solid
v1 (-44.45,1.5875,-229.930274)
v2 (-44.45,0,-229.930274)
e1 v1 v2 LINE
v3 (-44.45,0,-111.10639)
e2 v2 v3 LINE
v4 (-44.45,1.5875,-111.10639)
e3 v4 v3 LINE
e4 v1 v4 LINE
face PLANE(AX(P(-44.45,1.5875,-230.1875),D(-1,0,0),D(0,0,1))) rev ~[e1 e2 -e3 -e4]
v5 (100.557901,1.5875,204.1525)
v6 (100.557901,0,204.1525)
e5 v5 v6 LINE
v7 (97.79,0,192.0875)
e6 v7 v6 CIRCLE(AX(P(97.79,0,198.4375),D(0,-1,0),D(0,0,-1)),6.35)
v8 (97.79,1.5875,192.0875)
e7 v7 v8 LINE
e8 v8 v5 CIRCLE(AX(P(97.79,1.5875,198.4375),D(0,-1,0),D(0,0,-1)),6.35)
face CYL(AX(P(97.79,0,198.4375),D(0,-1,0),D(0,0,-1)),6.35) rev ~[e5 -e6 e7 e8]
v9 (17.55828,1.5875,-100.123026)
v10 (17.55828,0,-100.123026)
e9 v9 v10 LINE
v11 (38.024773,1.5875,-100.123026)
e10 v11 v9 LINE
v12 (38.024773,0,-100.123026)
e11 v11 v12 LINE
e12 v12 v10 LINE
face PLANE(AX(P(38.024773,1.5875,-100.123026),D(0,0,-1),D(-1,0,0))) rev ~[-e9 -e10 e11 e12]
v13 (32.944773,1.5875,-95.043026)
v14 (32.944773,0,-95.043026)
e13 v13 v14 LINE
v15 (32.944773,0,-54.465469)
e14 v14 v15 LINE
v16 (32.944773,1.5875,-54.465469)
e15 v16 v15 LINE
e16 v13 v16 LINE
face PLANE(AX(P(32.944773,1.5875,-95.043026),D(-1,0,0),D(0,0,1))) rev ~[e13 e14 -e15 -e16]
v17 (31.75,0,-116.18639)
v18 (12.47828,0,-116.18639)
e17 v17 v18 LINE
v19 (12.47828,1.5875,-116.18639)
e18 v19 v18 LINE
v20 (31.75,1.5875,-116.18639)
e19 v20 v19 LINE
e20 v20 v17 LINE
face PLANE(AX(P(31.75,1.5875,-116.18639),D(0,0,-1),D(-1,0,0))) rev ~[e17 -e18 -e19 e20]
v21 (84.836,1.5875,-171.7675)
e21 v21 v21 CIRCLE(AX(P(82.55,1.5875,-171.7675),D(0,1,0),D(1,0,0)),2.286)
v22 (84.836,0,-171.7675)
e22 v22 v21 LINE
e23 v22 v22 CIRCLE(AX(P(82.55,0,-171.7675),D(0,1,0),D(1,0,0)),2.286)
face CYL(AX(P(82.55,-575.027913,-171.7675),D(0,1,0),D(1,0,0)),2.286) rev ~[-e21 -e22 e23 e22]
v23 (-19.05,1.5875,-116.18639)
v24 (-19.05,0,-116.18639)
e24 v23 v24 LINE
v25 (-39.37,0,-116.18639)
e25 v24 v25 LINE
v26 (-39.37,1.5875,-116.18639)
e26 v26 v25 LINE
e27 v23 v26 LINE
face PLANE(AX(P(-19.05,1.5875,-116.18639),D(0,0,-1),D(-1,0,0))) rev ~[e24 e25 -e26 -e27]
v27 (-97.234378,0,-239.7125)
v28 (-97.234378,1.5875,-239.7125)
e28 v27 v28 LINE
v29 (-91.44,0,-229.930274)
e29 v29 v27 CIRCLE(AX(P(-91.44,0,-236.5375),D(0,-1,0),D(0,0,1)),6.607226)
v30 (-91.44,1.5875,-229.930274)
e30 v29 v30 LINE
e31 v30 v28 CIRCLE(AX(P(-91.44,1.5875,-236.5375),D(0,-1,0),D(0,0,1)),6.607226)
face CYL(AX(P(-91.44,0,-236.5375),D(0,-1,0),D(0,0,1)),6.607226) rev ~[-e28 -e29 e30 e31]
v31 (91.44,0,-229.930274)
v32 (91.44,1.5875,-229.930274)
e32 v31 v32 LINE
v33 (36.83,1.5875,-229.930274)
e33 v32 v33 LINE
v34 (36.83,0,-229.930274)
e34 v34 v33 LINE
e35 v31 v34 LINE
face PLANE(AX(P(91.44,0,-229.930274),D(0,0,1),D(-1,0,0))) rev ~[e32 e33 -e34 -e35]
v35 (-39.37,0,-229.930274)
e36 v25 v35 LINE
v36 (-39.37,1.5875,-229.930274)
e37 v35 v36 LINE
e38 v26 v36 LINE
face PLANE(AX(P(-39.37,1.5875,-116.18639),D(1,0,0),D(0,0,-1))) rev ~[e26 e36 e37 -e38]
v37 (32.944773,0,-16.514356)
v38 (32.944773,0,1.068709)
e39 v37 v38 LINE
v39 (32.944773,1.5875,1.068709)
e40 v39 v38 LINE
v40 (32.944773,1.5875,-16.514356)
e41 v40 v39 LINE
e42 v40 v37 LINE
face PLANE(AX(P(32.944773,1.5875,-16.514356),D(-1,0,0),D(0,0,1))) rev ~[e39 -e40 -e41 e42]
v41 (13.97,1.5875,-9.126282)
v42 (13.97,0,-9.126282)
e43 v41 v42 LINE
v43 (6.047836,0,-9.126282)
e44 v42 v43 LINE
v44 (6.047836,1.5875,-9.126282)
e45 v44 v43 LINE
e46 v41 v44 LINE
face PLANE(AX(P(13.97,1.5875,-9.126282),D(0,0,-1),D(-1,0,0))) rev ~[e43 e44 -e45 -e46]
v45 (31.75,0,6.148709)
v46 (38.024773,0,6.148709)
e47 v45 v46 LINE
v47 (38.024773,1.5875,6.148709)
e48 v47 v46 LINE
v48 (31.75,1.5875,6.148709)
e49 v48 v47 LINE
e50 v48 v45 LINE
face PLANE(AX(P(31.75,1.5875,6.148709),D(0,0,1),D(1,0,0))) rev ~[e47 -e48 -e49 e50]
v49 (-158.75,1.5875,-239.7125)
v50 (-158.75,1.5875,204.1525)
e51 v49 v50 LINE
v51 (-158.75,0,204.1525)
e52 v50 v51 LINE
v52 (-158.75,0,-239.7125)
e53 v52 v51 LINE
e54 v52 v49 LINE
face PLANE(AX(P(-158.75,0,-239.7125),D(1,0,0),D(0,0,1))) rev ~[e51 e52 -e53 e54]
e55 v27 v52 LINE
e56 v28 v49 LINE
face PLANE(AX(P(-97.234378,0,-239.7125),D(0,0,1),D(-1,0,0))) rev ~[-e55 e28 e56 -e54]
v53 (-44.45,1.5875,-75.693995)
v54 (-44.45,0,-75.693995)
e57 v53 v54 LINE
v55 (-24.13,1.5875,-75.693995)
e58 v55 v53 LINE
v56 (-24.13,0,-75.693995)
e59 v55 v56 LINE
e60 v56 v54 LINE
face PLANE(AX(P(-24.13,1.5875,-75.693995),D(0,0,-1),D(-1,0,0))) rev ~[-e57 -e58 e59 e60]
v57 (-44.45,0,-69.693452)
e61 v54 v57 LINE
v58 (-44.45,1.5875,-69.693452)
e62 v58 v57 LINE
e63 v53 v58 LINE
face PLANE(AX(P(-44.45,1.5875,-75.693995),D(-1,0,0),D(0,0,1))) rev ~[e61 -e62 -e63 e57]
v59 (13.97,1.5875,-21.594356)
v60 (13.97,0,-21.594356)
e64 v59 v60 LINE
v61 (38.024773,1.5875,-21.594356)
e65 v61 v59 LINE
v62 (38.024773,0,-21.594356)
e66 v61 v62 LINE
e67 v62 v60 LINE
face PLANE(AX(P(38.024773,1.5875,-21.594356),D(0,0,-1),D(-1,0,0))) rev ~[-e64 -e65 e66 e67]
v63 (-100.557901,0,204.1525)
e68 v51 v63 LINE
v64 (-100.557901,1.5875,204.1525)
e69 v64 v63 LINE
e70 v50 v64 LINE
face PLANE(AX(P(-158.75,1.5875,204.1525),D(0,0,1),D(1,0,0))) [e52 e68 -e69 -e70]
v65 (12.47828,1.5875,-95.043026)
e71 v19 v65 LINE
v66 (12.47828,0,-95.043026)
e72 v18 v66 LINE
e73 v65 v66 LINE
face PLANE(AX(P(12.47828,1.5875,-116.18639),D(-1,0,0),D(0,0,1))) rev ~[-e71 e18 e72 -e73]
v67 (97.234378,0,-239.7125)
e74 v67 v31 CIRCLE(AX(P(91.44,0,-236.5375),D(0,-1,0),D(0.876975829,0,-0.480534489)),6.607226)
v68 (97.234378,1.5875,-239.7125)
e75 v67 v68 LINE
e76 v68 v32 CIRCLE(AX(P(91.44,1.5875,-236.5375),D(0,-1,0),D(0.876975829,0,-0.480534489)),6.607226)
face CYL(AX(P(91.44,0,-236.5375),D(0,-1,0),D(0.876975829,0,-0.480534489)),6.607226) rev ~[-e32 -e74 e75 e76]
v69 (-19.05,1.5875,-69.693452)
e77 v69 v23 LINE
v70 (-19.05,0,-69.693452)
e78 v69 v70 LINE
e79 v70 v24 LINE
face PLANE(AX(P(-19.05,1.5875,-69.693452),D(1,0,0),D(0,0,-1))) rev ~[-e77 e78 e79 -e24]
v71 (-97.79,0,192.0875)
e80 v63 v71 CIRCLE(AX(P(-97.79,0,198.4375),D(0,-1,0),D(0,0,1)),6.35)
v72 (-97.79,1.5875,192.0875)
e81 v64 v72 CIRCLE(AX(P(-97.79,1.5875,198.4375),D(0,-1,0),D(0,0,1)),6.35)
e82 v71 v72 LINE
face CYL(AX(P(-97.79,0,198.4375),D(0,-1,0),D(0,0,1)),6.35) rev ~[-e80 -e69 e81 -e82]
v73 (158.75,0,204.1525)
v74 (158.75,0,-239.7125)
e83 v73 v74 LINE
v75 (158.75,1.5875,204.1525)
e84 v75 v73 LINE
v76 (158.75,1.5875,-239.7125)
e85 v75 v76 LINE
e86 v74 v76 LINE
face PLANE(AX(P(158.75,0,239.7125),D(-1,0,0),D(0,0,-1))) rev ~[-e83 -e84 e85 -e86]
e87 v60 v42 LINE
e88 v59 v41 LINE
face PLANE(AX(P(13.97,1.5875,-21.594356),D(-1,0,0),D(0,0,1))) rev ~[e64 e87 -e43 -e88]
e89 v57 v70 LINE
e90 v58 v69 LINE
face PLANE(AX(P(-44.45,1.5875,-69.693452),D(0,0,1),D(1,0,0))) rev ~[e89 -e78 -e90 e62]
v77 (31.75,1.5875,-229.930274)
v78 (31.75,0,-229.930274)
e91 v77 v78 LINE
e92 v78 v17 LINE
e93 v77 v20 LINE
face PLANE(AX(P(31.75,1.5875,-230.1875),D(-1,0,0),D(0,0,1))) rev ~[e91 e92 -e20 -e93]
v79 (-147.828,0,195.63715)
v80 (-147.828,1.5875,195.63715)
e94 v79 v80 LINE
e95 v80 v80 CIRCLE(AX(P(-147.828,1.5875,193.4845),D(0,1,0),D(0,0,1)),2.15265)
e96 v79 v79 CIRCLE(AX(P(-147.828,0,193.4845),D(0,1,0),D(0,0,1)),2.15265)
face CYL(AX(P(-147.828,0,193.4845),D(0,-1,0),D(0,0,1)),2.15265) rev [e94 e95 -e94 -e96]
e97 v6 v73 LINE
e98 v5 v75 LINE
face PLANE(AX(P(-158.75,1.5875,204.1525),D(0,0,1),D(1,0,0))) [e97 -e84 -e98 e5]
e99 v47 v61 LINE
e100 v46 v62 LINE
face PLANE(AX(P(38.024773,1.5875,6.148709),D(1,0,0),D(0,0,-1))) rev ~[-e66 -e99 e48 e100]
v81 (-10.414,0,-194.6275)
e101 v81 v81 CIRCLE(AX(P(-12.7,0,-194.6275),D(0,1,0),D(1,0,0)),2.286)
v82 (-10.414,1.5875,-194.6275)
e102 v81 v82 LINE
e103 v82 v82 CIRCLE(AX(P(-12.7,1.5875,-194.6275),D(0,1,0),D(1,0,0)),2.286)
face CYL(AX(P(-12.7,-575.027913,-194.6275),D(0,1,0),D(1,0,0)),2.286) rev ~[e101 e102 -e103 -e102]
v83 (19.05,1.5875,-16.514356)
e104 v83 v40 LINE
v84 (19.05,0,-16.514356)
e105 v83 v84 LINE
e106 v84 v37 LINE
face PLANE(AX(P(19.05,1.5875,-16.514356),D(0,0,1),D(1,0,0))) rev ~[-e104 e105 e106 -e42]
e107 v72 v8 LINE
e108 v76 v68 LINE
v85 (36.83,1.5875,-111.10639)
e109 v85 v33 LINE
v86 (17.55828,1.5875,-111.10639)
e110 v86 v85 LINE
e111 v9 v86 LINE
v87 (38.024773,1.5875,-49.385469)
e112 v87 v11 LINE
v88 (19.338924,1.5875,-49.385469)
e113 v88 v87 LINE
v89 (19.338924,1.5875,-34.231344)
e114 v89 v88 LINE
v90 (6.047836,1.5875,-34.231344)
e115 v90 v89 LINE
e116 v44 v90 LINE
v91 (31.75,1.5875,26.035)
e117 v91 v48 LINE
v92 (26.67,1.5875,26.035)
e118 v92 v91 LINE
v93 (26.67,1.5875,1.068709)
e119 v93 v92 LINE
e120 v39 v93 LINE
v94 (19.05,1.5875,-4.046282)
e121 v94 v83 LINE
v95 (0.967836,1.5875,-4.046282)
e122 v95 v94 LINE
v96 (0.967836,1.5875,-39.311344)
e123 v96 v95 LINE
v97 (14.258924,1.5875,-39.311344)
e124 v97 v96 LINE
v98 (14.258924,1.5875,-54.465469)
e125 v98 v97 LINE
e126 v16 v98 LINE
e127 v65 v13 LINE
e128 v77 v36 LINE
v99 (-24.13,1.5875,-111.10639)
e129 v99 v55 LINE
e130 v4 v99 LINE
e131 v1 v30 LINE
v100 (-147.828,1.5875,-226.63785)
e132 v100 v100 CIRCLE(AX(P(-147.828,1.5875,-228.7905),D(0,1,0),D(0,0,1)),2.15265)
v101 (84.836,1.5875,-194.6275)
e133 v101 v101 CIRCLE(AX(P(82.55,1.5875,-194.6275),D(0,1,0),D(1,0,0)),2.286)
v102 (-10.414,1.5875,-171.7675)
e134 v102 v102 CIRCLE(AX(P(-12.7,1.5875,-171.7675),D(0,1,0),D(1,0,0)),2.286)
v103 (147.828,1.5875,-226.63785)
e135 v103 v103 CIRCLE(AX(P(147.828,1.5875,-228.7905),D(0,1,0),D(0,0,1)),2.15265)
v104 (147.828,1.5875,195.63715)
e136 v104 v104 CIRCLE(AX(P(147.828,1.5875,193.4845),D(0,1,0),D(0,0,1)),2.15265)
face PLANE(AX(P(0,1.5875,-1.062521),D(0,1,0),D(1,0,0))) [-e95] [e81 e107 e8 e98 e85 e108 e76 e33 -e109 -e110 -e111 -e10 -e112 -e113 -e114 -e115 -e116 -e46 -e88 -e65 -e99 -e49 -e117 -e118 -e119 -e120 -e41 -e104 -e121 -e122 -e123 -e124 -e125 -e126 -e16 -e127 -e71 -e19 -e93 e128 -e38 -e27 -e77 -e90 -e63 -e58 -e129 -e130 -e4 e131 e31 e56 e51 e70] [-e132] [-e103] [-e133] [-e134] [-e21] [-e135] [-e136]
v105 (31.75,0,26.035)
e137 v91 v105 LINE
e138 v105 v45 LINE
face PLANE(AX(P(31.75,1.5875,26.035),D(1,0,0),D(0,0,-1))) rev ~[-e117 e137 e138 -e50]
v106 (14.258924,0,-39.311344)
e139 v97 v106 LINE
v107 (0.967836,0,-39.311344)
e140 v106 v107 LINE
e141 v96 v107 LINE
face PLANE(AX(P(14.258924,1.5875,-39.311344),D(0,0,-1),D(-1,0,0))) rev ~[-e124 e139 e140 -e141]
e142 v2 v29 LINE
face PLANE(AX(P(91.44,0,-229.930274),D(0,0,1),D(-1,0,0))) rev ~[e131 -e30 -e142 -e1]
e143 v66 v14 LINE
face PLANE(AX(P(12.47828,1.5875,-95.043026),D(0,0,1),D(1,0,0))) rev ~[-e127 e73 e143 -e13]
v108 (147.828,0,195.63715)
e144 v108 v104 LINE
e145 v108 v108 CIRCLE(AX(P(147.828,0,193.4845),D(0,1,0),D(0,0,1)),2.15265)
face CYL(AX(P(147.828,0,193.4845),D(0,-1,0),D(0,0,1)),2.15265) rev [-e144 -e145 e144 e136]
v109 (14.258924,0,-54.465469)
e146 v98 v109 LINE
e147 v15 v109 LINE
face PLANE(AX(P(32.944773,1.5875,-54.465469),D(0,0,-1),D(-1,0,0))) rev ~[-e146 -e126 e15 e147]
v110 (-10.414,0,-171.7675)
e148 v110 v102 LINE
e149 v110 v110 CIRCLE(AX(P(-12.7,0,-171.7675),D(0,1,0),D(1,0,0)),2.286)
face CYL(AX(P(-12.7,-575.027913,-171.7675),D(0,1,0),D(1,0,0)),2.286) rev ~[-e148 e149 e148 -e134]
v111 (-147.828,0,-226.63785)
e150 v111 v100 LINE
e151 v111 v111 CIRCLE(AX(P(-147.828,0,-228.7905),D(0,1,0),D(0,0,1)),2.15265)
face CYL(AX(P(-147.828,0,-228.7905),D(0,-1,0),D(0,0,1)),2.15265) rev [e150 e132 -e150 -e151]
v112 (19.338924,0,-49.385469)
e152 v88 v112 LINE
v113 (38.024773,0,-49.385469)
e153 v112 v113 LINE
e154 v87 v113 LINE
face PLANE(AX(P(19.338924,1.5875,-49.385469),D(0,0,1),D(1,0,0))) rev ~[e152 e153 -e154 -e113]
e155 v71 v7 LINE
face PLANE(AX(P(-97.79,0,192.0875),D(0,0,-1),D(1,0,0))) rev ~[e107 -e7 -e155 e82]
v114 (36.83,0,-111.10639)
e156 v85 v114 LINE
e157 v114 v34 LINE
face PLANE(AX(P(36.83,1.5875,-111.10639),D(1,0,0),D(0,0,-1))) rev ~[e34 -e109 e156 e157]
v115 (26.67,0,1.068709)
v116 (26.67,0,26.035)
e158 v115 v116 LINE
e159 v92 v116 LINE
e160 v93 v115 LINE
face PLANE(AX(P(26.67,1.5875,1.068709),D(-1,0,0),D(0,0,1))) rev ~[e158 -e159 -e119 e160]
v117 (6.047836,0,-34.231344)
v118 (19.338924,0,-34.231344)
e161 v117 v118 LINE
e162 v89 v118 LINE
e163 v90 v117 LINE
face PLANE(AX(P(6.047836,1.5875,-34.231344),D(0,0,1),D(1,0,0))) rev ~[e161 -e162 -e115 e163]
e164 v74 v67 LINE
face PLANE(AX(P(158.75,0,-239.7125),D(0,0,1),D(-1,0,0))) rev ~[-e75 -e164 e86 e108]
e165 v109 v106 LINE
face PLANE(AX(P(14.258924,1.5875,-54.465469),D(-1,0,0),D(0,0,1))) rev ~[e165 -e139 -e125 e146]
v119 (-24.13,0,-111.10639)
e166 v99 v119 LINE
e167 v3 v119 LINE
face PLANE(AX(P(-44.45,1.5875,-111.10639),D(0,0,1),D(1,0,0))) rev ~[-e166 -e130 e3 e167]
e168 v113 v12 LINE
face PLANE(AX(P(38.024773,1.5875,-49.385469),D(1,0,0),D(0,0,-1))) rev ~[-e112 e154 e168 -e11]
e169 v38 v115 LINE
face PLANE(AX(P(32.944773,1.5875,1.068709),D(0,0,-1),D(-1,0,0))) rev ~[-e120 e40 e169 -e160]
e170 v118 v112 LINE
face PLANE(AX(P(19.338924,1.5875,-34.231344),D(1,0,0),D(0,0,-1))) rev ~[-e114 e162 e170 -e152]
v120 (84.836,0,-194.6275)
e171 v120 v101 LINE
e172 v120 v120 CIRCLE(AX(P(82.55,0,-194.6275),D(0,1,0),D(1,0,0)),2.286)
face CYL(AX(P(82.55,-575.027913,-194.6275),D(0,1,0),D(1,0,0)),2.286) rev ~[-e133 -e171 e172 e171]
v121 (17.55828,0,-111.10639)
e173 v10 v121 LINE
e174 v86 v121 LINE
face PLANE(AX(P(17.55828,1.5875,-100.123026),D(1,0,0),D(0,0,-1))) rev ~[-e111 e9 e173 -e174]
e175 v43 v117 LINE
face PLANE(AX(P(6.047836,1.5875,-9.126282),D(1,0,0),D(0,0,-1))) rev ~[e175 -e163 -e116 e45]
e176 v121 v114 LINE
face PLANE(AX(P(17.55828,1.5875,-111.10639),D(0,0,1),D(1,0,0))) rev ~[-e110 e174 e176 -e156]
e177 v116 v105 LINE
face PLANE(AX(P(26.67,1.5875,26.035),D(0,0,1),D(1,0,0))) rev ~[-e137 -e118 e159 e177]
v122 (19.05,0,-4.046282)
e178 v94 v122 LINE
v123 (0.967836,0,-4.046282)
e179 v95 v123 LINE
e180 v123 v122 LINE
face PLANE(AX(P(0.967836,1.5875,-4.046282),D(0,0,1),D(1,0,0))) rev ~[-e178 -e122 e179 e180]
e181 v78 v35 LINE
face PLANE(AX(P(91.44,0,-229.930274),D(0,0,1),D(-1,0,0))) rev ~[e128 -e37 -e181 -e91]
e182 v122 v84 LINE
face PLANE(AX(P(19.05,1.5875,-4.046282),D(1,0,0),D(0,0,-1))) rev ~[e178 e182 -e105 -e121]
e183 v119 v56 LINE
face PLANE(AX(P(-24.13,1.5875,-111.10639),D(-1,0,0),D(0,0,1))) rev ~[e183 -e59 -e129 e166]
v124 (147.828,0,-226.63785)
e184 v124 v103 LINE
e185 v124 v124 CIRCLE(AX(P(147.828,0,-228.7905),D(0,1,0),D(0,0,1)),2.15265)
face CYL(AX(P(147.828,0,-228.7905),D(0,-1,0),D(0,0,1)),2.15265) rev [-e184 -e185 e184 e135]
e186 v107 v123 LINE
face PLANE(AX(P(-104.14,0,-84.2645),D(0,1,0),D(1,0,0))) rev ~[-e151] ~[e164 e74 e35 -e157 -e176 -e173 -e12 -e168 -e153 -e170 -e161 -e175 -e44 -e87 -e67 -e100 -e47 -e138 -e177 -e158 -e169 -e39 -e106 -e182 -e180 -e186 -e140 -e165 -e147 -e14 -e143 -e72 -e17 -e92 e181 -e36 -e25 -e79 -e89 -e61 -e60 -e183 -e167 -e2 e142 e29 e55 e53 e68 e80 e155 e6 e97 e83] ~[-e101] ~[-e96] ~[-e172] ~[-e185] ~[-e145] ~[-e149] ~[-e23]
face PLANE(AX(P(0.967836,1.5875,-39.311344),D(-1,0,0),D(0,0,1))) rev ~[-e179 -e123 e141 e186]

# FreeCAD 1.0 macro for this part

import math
import FreeCAD as App
import Part
import Sketcher
from FreeCAD import Vector
Q = App.Units.Quantity

doc = App.newDocument("Part")
params = doc.addObject("Spreadsheet::Sheet", "Params")
for row, (alias, value) in enumerate([
    ("sketch1_radius", "0.25 in"),
    ("sketch1_width", "12.5 in"),
    ("sketch1_width2", "7.2 in"),
    ("sketch1_width3", "7.7 in"),
    ("sketch1_width4", "2.4218749 in"),
    ("pad1_length", "0.0625 in"),
    ("sketch2_width", "1 in"),
    ("sketch2_width2", "0.2 in"),
    ("pocket1_length", "0.1 in"),
    ("sketch3_diameter", "0.18 in"),
    ("hole_diameter", "0.18 in"),
    ("sketch4_width", "12.5 in"),
    ("sketch4_height", "1.4 in"),
], start=1):
    params.set(f"A{row}", alias)
    params.set(f"B{row}", "=" + value)
    params.setAlias(f"B{row}", alias)

body = doc.addObject("PartDesign::Body", "Body")

sketch1 = body.newObject("Sketcher::SketchObject", "Sketch")
sketch1.AttachmentSupport = (doc.getObject("XZ_Plane"), [""])
sketch1.MapMode = "FlatFace"
sketch1.addGeometry(Part.LineSegment(Vector(-97.234378, -239.7125, 0), Vector(-158.75, -239.7125, 0)), False)
sketch1.addGeometry(Part.LineSegment(Vector(-158.75, -239.7125, 0), Vector(-158.75, 239.7125, 0)), False)
sketch1.addGeometry(Part.LineSegment(Vector(-158.75, 239.7125, 0), Vector(158.75, 239.7125, 0)), False)
sketch1.addGeometry(Part.LineSegment(Vector(158.75, 239.7125, 0), Vector(158.75, -239.7125, 0)), False)
sketch1.addGeometry(Part.LineSegment(Vector(158.75, -239.7125, 0), Vector(97.234378, -239.7125, 0)), False)
sketch1.addGeometry(Part.ArcOfCircle(Part.Circle(Vector(91.44, -236.5375, 0), Vector(0, 0, 1), 6.607226), math.radians(-28.720316), math.radians(90)), False)
sketch1.addGeometry(Part.LineSegment(Vector(91.44, -229.930274, 0), Vector(-91.44, -229.930274, 0)), False)
sketch1.addGeometry(Part.ArcOfCircle(Part.Circle(Vector(-91.44, -236.5375, 0), Vector(0, 0, 1), 6.607226), math.radians(90), math.radians(208.720316)), False)
sketch1.addGeometry(Part.Circle(Vector(-147.828, 193.4845, 0), Vector(0, 0, 1), 2.15265), False)
sketch1.addGeometry(Part.LineSegment(Vector(97.79, 204.7875, 0), Vector(-97.79, 204.7875, 0)), False)
sketch1.addGeometry(Part.ArcOfCircle(Part.Circle(Vector(-97.79, 198.4375, 0), Vector(0, 0, 1), 6.35), math.radians(90), math.radians(270)), False)
sketch1.addGeometry(Part.LineSegment(Vector(-97.79, 192.0875, 0), Vector(97.79, 192.0875, 0)), False)
sketch1.addGeometry(Part.ArcOfCircle(Part.Circle(Vector(97.79, 198.4375, 0), Vector(0, 0, 1), 6.35), math.radians(-90), math.radians(90)), False)
sketch1.addGeometry(Part.Circle(Vector(147.828, 193.4845, 0), Vector(0, 0, 1), 2.15265), False)
sketch1.addGeometry(Part.Circle(Vector(-147.828, -228.7905, 0), Vector(0, 0, 1), 2.15265), False)
sketch1.addGeometry(Part.Circle(Vector(147.828, -228.7905, 0), Vector(0, 0, 1), 2.15265), False)
sketch1.addConstraint(Sketcher.Constraint("Coincident", 0, 2, 1, 1))
sketch1.addConstraint(Sketcher.Constraint("Coincident", 1, 2, 2, 1))
sketch1.addConstraint(Sketcher.Constraint("Coincident", 2, 2, 3, 1))
sketch1.addConstraint(Sketcher.Constraint("Coincident", 3, 2, 4, 1))
sketch1.addConstraint(Sketcher.Constraint("Coincident", 4, 2, 5, 1))
sketch1.addConstraint(Sketcher.Constraint("Tangent", 5, 2, 6, 1))
sketch1.addConstraint(Sketcher.Constraint("Tangent", 6, 2, 7, 1))
sketch1.addConstraint(Sketcher.Constraint("Coincident", 7, 2, 0, 1))
sketch1.addConstraint(Sketcher.Constraint("Tangent", 9, 2, 10, 1))
sketch1.addConstraint(Sketcher.Constraint("Tangent", 10, 2, 11, 1))
sketch1.addConstraint(Sketcher.Constraint("Tangent", 11, 2, 12, 1))
sketch1.addConstraint(Sketcher.Constraint("Tangent", 12, 2, 9, 1))
sketch1.addConstraint(Sketcher.Constraint("Horizontal", 0))
sketch1.addConstraint(Sketcher.Constraint("Vertical", 1))
sketch1.addConstraint(Sketcher.Constraint("Horizontal", 2))
sketch1.addConstraint(Sketcher.Constraint("Vertical", 3))
sketch1.addConstraint(Sketcher.Constraint("Horizontal", 4))
sketch1.addConstraint(Sketcher.Constraint("Horizontal", 6))
sketch1.addConstraint(Sketcher.Constraint("Horizontal", 9))
sketch1.addConstraint(Sketcher.Constraint("Horizontal", 11))
sketch1.addConstraint(Sketcher.Constraint("Equal", 5, 7))
sketch1.addConstraint(Sketcher.Constraint("Equal", 8, 13))
sketch1.addConstraint(Sketcher.Constraint("Equal", 13, 14))
sketch1.addConstraint(Sketcher.Constraint("Equal", 14, 15))
sketch1.addConstraint(Sketcher.Constraint("Symmetric", 0, 2, 2, 2, -1, 1))
sketch1.addConstraint(Sketcher.Constraint("Symmetric", 8, 3, 13, 3, -2))
sketch1.addConstraint(Sketcher.Constraint("Symmetric", 14, 3, 15, 3, -2))
sketch1.addConstraint(Sketcher.Constraint("Symmetric", 4, 2, 7, 2, -2))
sketch1.addConstraint(Sketcher.Constraint("Vertical", 8, 3, 14, 3))
sketch1.addConstraint(Sketcher.Constraint("Radius", 10, Q("0.25 in")))
sketch1.addConstraint(Sketcher.Constraint("DistanceX", 2, 1, 2, 2, Q("12.5 in")))
sketch1.addConstraint(Sketcher.Constraint("DistanceX", 6, 2, 6, 1, Q("7.2 in")))
sketch1.addConstraint(Sketcher.Constraint("DistanceX", 9, 2, 9, 1, Q("7.7 in")))
sketch1.addConstraint(Sketcher.Constraint("Diameter", 8, Q("0.1695 in")))
sketch1.addConstraint(Sketcher.Constraint("DistanceX", 1, 2, 10, 3, Q("2.4 in")))
sketch1.addConstraint(Sketcher.Constraint("DistanceX", 0, 2, 0, 1, Q("2.4218749 in")))
sketch1.addConstraint(Sketcher.Constraint("DistanceY", 1, 1, 1, 2, Q("18.875 in")))
sketch1.addConstraint(Sketcher.Constraint("DistanceX", 8, 3, -1, 1, Q("5.82 in")))
sketch1.addConstraint(Sketcher.Constraint("DistanceY", 7, 3, 8, 3, Q("16.93 in")))
sketch1.addConstraint(Sketcher.Constraint("DistanceY", 14, 3, 10, 3, Q("16.82 in")))
sketch1.addConstraint(Sketcher.Constraint("DistanceY", 0, 2, 14, 3, Q("0.43 in")))
sketch1.addConstraint(Sketcher.Constraint("DistanceY", 8, 3, 1, 2, Q("1.82 in")))
sketch1.setExpression("Constraints[29]", "Params.sketch1_radius")
sketch1.setExpression("Constraints[30]", "Params.sketch1_width")
sketch1.setExpression("Constraints[31]", "Params.sketch1_width2")
sketch1.setExpression("Constraints[32]", "Params.sketch1_width3")
sketch1.setExpression("Constraints[35]", "Params.sketch1_width4")
pad1 = body.newObject("PartDesign::Pad", "Pad")
pad1.Profile = sketch1
pad1.setExpression("Length", "Params.pad1_length")
pad1.Reversed = True

sketch2 = body.newObject("Sketcher::SketchObject", "Sketch001")
sketch2.AttachmentSupport = (doc.getObject("XZ_Plane"), [""])
sketch2.MapMode = "FlatFace"
sketch2.AttachmentOffset = App.Placement(Vector(0, 0, -0.0625 * 25.4), App.Rotation())
sketch2.addGeometry(Part.LineSegment(Vector(-39.37, -230.1875, 0), Vector(-44.45, -230.1875, 0)), False)
sketch2.addGeometry(Part.LineSegment(Vector(-44.45, -230.1875, 0), Vector(-44.45, -111.10639, 0)), False)
sketch2.addGeometry(Part.LineSegment(Vector(-44.45, -111.10639, 0), Vector(-24.13, -111.10639, 0)), False)
sketch2.addGeometry(Part.LineSegment(Vector(-24.13, -111.10639, 0), Vector(-24.13, -75.693995, 0)), False)
sketch2.addGeometry(Part.LineSegment(Vector(-24.13, -75.693995, 0), Vector(-44.45, -75.693995, 0)), False)
sketch2.addGeometry(Part.LineSegment(Vector(-44.45, -75.693995, 0), Vector(-44.45, -69.693452, 0)), False)
sketch2.addGeometry(Part.LineSegment(Vector(-44.45, -69.693452, 0), Vector(-19.05, -69.693452, 0)), False)
sketch2.addGeometry(Part.LineSegment(Vector(-19.05, -69.693452, 0), Vector(-19.05, -116.18639, 0)), False)
sketch2.addGeometry(Part.LineSegment(Vector(-19.05, -116.18639, 0), Vector(-39.37, -116.18639, 0)), False)
sketch2.addGeometry(Part.LineSegment(Vector(-39.37, -116.18639, 0), Vector(-39.37, -230.1875, 0)), False)
sketch2.addGeometry(Part.LineSegment(Vector(36.83, -230.1875, 0), Vector(31.75, -230.1875, 0)), False)
sketch2.addGeometry(Part.LineSegment(Vector(31.75, -230.1875, 0), Vector(31.75, -116.18639, 0)), False)
sketch2.addGeometry(Part.LineSegment(Vector(31.75, -116.18639, 0), Vector(12.47828, -116.18639, 0)), False)
sketch2.addGeometry(Part.LineSegment(Vector(12.47828, -116.18639, 0), Vector(12.47828, -95.043026, 0)), False)
sketch2.addGeometry(Part.LineSegment(Vector(12.47828, -95.043026, 0), Vector(32.944773, -95.043026, 0)), False)
sketch2.addGeometry(Part.LineSegment(Vector(32.944773, -95.043026, 0), Vector(32.944773, -54.465469, 0)), False)
sketch2.addGeometry(Part.LineSegment(Vector(32.944773, -54.465469, 0), Vector(14.258924, -54.465469, 0)), False)
sketch2.addGeometry(Part.LineSegment(Vector(14.258924, -54.465469, 0), Vector(14.258924, -39.311344, 0)), False)
sketch2.addGeometry(Part.LineSegment(Vector(14.258924, -39.311344, 0), Vector(0.967836, -39.311344, 0)), False)
sketch2.addGeometry(Part.LineSegment(Vector(0.967836, -39.311344, 0), Vector(0.967836, -4.046282, 0)), False)
sketch2.addGeometry(Part.LineSegment(Vector(0.967836, -4.046282, 0), Vector(19.05, -4.046282, 0)), False)
sketch2.addGeometry(Part.LineSegment(Vector(19.05, -4.046282, 0), Vector(19.05, -16.514356, 0)), False)
sketch2.addGeometry(Part.LineSegment(Vector(19.05, -16.514356, 0), Vector(32.944773, -16.514356, 0)), False)
sketch2.addGeometry(Part.LineSegment(Vector(32.944773, -16.514356, 0), Vector(32.944773, 1.068709, 0)), False)
sketch2.addGeometry(Part.LineSegment(Vector(32.944773, 1.068709, 0), Vector(26.67, 1.068709, 0)), False)
sketch2.addGeometry(Part.LineSegment(Vector(26.67, 1.068709, 0), Vector(26.67, 26.035, 0)), False)
sketch2.addGeometry(Part.LineSegment(Vector(26.67, 26.035, 0), Vector(31.75, 26.035, 0)), False)
sketch2.addGeometry(Part.LineSegment(Vector(31.75, 26.035, 0), Vector(31.75, 6.148709, 0)), False)
sketch2.addGeometry(Part.LineSegment(Vector(31.75, 6.148709, 0), Vector(38.024773, 6.148709, 0)), False)
sketch2.addGeometry(Part.LineSegment(Vector(38.024773, 6.148709, 0), Vector(38.024773, -21.594356, 0)), False)
sketch2.addGeometry(Part.LineSegment(Vector(38.024773, -21.594356, 0), Vector(13.97, -21.594356, 0)), False)
sketch2.addGeometry(Part.LineSegment(Vector(13.97, -21.594356, 0), Vector(13.97, -9.126282, 0)), False)
sketch2.addGeometry(Part.LineSegment(Vector(13.97, -9.126282, 0), Vector(6.047836, -9.126282, 0)), False)
sketch2.addGeometry(Part.LineSegment(Vector(6.047836, -9.126282, 0), Vector(6.047836, -34.231344, 0)), False)
sketch2.addGeometry(Part.LineSegment(Vector(6.047836, -34.231344, 0), Vector(19.338924, -34.231344, 0)), False)
sketch2.addGeometry(Part.LineSegment(Vector(19.338924, -34.231344, 0), Vector(19.338924, -49.385469, 0)), False)
sketch2.addGeometry(Part.LineSegment(Vector(19.338924, -49.385469, 0), Vector(38.024773, -49.385469, 0)), False)
sketch2.addGeometry(Part.LineSegment(Vector(38.024773, -49.385469, 0), Vector(38.024773, -100.123026, 0)), False)
sketch2.addGeometry(Part.LineSegment(Vector(38.024773, -100.123026, 0), Vector(17.55828, -100.123026, 0)), False)
sketch2.addGeometry(Part.LineSegment(Vector(17.55828, -100.123026, 0), Vector(17.55828, -111.10639, 0)), False)
sketch2.addGeometry(Part.LineSegment(Vector(17.55828, -111.10639, 0), Vector(36.83, -111.10639, 0)), False)
sketch2.addGeometry(Part.LineSegment(Vector(36.83, -111.10639, 0), Vector(36.83, -230.1875, 0)), False)
sketch2.addConstraint(Sketcher.Constraint("Coincident", 0, 2, 1, 1))
sketch2.addConstraint(Sketcher.Constraint("Coincident", 1, 2, 2, 1))
sketch2.addConstraint(Sketcher.Constraint("Coincident", 2, 2, 3, 1))
sketch2.addConstraint(Sketcher.Constraint("Coincident", 3, 2, 4, 1))
sketch2.addConstraint(Sketcher.Constraint("Coincident", 4, 2, 5, 1))
sketch2.addConstraint(Sketcher.Constraint("Coincident", 5, 2, 6, 1))
sketch2.addConstraint(Sketcher.Constraint("Coincident", 6, 2, 7, 1))
sketch2.addConstraint(Sketcher.Constraint("Coincident", 7, 2, 8, 1))
sketch2.addConstraint(Sketcher.Constraint("Coincident", 8, 2, 9, 1))
sketch2.addConstraint(Sketcher.Constraint("Coincident", 9, 2, 0, 1))
sketch2.addConstraint(Sketcher.Constraint("Coincident", 10, 2, 11, 1))
sketch2.addConstraint(Sketcher.Constraint("Coincident", 11, 2, 12, 1))
sketch2.addConstraint(Sketcher.Constraint("Coincident", 12, 2, 13, 1))
sketch2.addConstraint(Sketcher.Constraint("Coincident", 13, 2, 14, 1))
sketch2.addConstraint(Sketcher.Constraint("Coincident", 14, 2, 15, 1))
sketch2.addConstraint(Sketcher.Constraint("Coincident", 15, 2, 16, 1))
sketch2.addConstraint(Sketcher.Constraint("Coincident", 16, 2, 17, 1))
sketch2.addConstraint(Sketcher.Constraint("Coincident", 17, 2, 18, 1))
sketch2.addConstraint(Sketcher.Constraint("Coincident", 18, 2, 19, 1))
sketch2.addConstraint(Sketcher.Constraint("Coincident", 19, 2, 20, 1))
sketch2.addConstraint(Sketcher.Constraint("Coincident", 20, 2, 21, 1))
sketch2.addConstraint(Sketcher.Constraint("Coincident", 21, 2, 22, 1))
sketch2.addConstraint(Sketcher.Constraint("Coincident", 22, 2, 23, 1))
sketch2.addConstraint(Sketcher.Constraint("Coincident", 23, 2, 24, 1))
sketch2.addConstraint(Sketcher.Constraint("Coincident", 24, 2, 25, 1))
sketch2.addConstraint(Sketcher.Constraint("Coincident", 25, 2, 26, 1))
sketch2.addConstraint(Sketcher.Constraint("Coincident", 26, 2, 27, 1))
sketch2.addConstraint(Sketcher.Constraint("Coincident", 27, 2, 28, 1))
sketch2.addConstraint(Sketcher.Constraint("Coincident", 28, 2, 29, 1))
sketch2.addConstraint(Sketcher.Constraint("Coincident", 29, 2, 30, 1))
sketch2.addConstraint(Sketcher.Constraint("Coincident", 30, 2, 31, 1))
sketch2.addConstraint(Sketcher.Constraint("Coincident", 31, 2, 32, 1))
sketch2.addConstraint(Sketcher.Constraint("Coincident", 32, 2, 33, 1))
sketch2.addConstraint(Sketcher.Constraint("Coincident", 33, 2, 34, 1))
sketch2.addConstraint(Sketcher.Constraint("Coincident", 34, 2, 35, 1))
sketch2.addConstraint(Sketcher.Constraint("Coincident", 35, 2, 36, 1))
sketch2.addConstraint(Sketcher.Constraint("Coincident", 36, 2, 37, 1))
sketch2.addConstraint(Sketcher.Constraint("Coincident", 37, 2, 38, 1))
sketch2.addConstraint(Sketcher.Constraint("Coincident", 38, 2, 39, 1))
sketch2.addConstraint(Sketcher.Constraint("Coincident", 39, 2, 40, 1))
sketch2.addConstraint(Sketcher.Constraint("Coincident", 40, 2, 41, 1))
sketch2.addConstraint(Sketcher.Constraint("Coincident", 41, 2, 10, 1))
sketch2.addConstraint(Sketcher.Constraint("Horizontal", 0))
sketch2.addConstraint(Sketcher.Constraint("Vertical", 1))
sketch2.addConstraint(Sketcher.Constraint("Horizontal", 2))
sketch2.addConstraint(Sketcher.Constraint("Vertical", 3))
sketch2.addConstraint(Sketcher.Constraint("Horizontal", 4))
sketch2.addConstraint(Sketcher.Constraint("Vertical", 5))
sketch2.addConstraint(Sketcher.Constraint("Horizontal", 6))
sketch2.addConstraint(Sketcher.Constraint("Vertical", 7))
sketch2.addConstraint(Sketcher.Constraint("Horizontal", 8))
sketch2.addConstraint(Sketcher.Constraint("Vertical", 9))
sketch2.addConstraint(Sketcher.Constraint("Horizontal", 10))
sketch2.addConstraint(Sketcher.Constraint("Vertical", 11))
sketch2.addConstraint(Sketcher.Constraint("Horizontal", 12))
sketch2.addConstraint(Sketcher.Constraint("Vertical", 13))
sketch2.addConstraint(Sketcher.Constraint("Horizontal", 14))
sketch2.addConstraint(Sketcher.Constraint("Vertical", 15))
sketch2.addConstraint(Sketcher.Constraint("Horizontal", 16))
sketch2.addConstraint(Sketcher.Constraint("Vertical", 17))
sketch2.addConstraint(Sketcher.Constraint("Horizontal", 18))
sketch2.addConstraint(Sketcher.Constraint("Vertical", 19))
sketch2.addConstraint(Sketcher.Constraint("Horizontal", 20))
sketch2.addConstraint(Sketcher.Constraint("Vertical", 21))
sketch2.addConstraint(Sketcher.Constraint("Horizontal", 22))
sketch2.addConstraint(Sketcher.Constraint("Vertical", 23))
sketch2.addConstraint(Sketcher.Constraint("Horizontal", 24))
sketch2.addConstraint(Sketcher.Constraint("Vertical", 25))
sketch2.addConstraint(Sketcher.Constraint("Horizontal", 26))
sketch2.addConstraint(Sketcher.Constraint("Vertical", 27))
sketch2.addConstraint(Sketcher.Constraint("Horizontal", 28))
sketch2.addConstraint(Sketcher.Constraint("Vertical", 29))
sketch2.addConstraint(Sketcher.Constraint("Horizontal", 30))
sketch2.addConstraint(Sketcher.Constraint("Vertical", 31))
sketch2.addConstraint(Sketcher.Constraint("Horizontal", 32))
sketch2.addConstraint(Sketcher.Constraint("Vertical", 33))
sketch2.addConstraint(Sketcher.Constraint("Horizontal", 34))
sketch2.addConstraint(Sketcher.Constraint("Vertical", 35))
sketch2.addConstraint(Sketcher.Constraint("Horizontal", 36))
sketch2.addConstraint(Sketcher.Constraint("Vertical", 37))
sketch2.addConstraint(Sketcher.Constraint("Horizontal", 38))
sketch2.addConstraint(Sketcher.Constraint("Vertical", 39))
sketch2.addConstraint(Sketcher.Constraint("Horizontal", 40))
sketch2.addConstraint(Sketcher.Constraint("Vertical", 41))
sketch2.addConstraint(Sketcher.Constraint("Horizontal", 9, 2, 10, 2))
sketch2.addConstraint(Sketcher.Constraint("Horizontal", 8, 2, 11, 2))
sketch2.addConstraint(Sketcher.Constraint("Horizontal", 2, 2, 39, 2))
sketch2.addConstraint(Sketcher.Constraint("Vertical", 1, 2, 4, 2))
sketch2.addConstraint(Sketcher.Constraint("Vertical", 15, 2, 22, 2))
sketch2.addConstraint(Sketcher.Constraint("Vertical", 11, 2, 26, 2))
sketch2.addConstraint(Sketcher.Constraint("Vertical", 29, 2, 36, 2))
sketch2.addConstraint(Sketcher.Constraint("Equal", 4, 8))
sketch2.addConstraint(Sketcher.Constraint("Equal", 0, 10))
sketch2.addConstraint(Sketcher.Constraint("Equal", 10, 26))
sketch2.addConstraint(Sketcher.Constraint("Equal", 24, 28))
sketch2.addConstraint(Sketcher.Constraint("Equal", 18, 34))
sketch2.addConstraint(Sketcher.Constraint("Equal", 16, 36))
sketch2.addConstraint(Sketcher.Constraint("Equal", 14, 38))
sketch2.addConstraint(Sketcher.Constraint("Equal", 21, 31))
sketch2.addConstraint(Sketcher.Constraint("Equal", 17, 35))
sketch2.addConstraint(Sketcher.Constraint("DistanceX", 6, 1, 6, 2, Q("1 in")))
sketch2.addConstraint(Sketcher.Constraint("DistanceX", 0, 2, 0, 1, Q("0.2 in")))
sketch2.addConstraint(Sketcher.Constraint("DistanceX", 0, 2, 10, 2, Q("3 in")))
sketch2.addConstraint(Sketcher.Constraint("DistanceY", 7, 2, 2, 2, Q("0.2 in")))
sketch2.addConstraint(Sketcher.Constraint("DistanceX", 20, 2, 24, 2, Q("0.3 in")))
sketch2.addConstraint(Sketcher.Constraint("DistanceY", 23, 2, 27, 2, Q("0.2 in")))
sketch2.addConstraint(Sketcher.Constraint("DistanceY", 29, 2, 22, 2, Q("0.2 in")))
sketch2.addConstraint(Sketcher.Constraint("DistanceX", 30, 2, 21, 2, Q("0.2 in")))
sketch2.addConstraint(Sketcher.Constraint("DistanceY", 18, 2, 33, 2, Q("0.2 in")))
sketch2.addConstraint(Sketcher.Constraint("DistanceY", 37, 2, 14, 2, Q("0.2 in")))
sketch2.addConstraint(Sketcher.Constraint("DistanceX", 0, 2, -1, 1, Q("1.75 in")))
sketch2.addConstraint(Sketcher.Constraint("DistanceY", 0, 2, -1, 1, Q("9.0625 in")))
sketch2.addConstraint(Sketcher.Constraint("DistanceY", -1, 1, 25, 2, Q("1.025 in")))
sketch2.addConstraint(Sketcher.Constraint("DistanceX", 12, 2, 12, 1, 19.27172))
sketch2.addConstraint(Sketcher.Constraint("DistanceX", 16, 2, 16, 1, 18.685849))
sketch2.addConstraint(Sketcher.Constraint("DistanceY", 1, 1, 1, 2, 119.08111))
sketch2.addConstraint(Sketcher.Constraint("DistanceY", 7, 2, 7, 1, 46.492938))
sketch2.addConstraint(Sketcher.Constraint("DistanceY", 25, 1, 25, 2, 24.966291))
sketch2.addConstraint(Sketcher.Constraint("DistanceX", 14, 1, 14, 2, 20.466493))
sketch2.addConstraint(Sketcher.Constraint("DistanceX", 18, 2, 18, 1, 13.291087))
sketch2.addConstraint(Sketcher.Constraint("DistanceY", 3, 1, 3, 2, 35.412395))
sketch2.addConstraint(Sketcher.Constraint("DistanceY", 13, 1, 13, 2, 21.143364))
sketch2.addConstraint(Sketcher.Constraint("DistanceY", 15, 1, 15, 2, 40.577557))
sketch2.addConstraint(Sketcher.Constraint("DistanceY", 17, 1, 17, 2, 15.154125))
sketch2.addConstraint(Sketcher.Constraint("DistanceY", 19, 1, 19, 2, 35.265062))
sketch2.addConstraint(Sketcher.Constraint("DistanceY", 21, 2, 21, 1, 12.468074))
sketch2.setExpression("Constraints[100]", "Params.sketch2_width")
sketch2.setExpression("Constraints[101]", "Params.sketch2_width2")
pocket1 = body.newObject("PartDesign::Pocket", "Pocket")
pocket1.Profile = sketch2
pocket1.setExpression("Length", "Params.pocket1_length")
pocket1.Reversed = True

sketch3 = body.newObject("Sketcher::SketchObject", "Sketch002")
sketch3.AttachmentSupport = (doc.getObject("XZ_Plane"), [""])
sketch3.MapMode = "FlatFace"
sketch3.addGeometry(Part.Circle(Vector(82.55, -194.6275, 0), Vector(0, 0, 1), 2.286), False)
sketch3.addGeometry(Part.Circle(Vector(-12.7, -194.6275, 0), Vector(0, 0, 1), 2.286), False)
sketch3.addGeometry(Part.Circle(Vector(82.55, -171.7675, 0), Vector(0, 0, 1), 2.286), False)
sketch3.addGeometry(Part.Circle(Vector(-12.7, -171.7675, 0), Vector(0, 0, 1), 2.286), False)
sketch3.addConstraint(Sketcher.Constraint("Equal", 0, 1))
sketch3.addConstraint(Sketcher.Constraint("Equal", 1, 2))
sketch3.addConstraint(Sketcher.Constraint("Equal", 2, 3))
sketch3.addConstraint(Sketcher.Constraint("Horizontal", 0, 3, 1, 3))
sketch3.addConstraint(Sketcher.Constraint("Horizontal", 2, 3, 3, 3))
sketch3.addConstraint(Sketcher.Constraint("Vertical", 0, 3, 2, 3))
sketch3.addConstraint(Sketcher.Constraint("Vertical", 1, 3, 3, 3))
sketch3.addConstraint(Sketcher.Constraint("Diameter", 0, Q("0.18 in")))
sketch3.addConstraint(Sketcher.Constraint("DistanceX", 1, 3, -1, 1, Q("0.5 in")))
sketch3.addConstraint(Sketcher.Constraint("DistanceY", 0, 3, 2, 3, Q("0.9 in")))
sketch3.addConstraint(Sketcher.Constraint("DistanceX", -1, 1, 0, 3, Q("3.25 in")))
sketch3.addConstraint(Sketcher.Constraint("DistanceY", 0, 3, -1, 1, Q("7.6625 in")))
sketch3.setExpression("Constraints[7]", "Params.sketch3_diameter")
doc.recompute()
hole = body.newObject("PartDesign::Hole", "Hole")
hole.Profile = sketch3
hole.ThreadType = "None"
hole.setExpression("Diameter", "Params.hole_diameter")
hole.DepthType = "ThroughAll"

sketch4 = body.newObject("Sketcher::SketchObject", "Sketch003")
sketch4.AttachmentSupport = (doc.getObject("XZ_Plane"), [""])
sketch4.MapMode = "FlatFace"
sketch4.AttachmentOffset = App.Placement(Vector(0, 0, -0.0625 * 25.4), App.Rotation())
sketch4.addGeometry(Part.LineSegment(Vector(-158.75, 204.1525, 0), Vector(-158.75, 239.7125, 0)), False)
sketch4.addGeometry(Part.LineSegment(Vector(-158.75, 239.7125, 0), Vector(158.75, 239.7125, 0)), False)
sketch4.addGeometry(Part.LineSegment(Vector(158.75, 239.7125, 0), Vector(158.75, 204.1525, 0)), False)
sketch4.addGeometry(Part.LineSegment(Vector(158.75, 204.1525, 0), Vector(-158.75, 204.1525, 0)), False)
sketch4.addConstraint(Sketcher.Constraint("Coincident", 0, 2, 1, 1))
sketch4.addConstraint(Sketcher.Constraint("Coincident", 1, 2, 2, 1))
sketch4.addConstraint(Sketcher.Constraint("Coincident", 2, 2, 3, 1))
sketch4.addConstraint(Sketcher.Constraint("Coincident", 3, 2, 0, 1))
sketch4.addConstraint(Sketcher.Constraint("Vertical", 0))
sketch4.addConstraint(Sketcher.Constraint("Horizontal", 1))
sketch4.addConstraint(Sketcher.Constraint("Vertical", 2))
sketch4.addConstraint(Sketcher.Constraint("Horizontal", 3))
sketch4.addConstraint(Sketcher.Constraint("DistanceX", 1, 1, 1, 2, Q("12.5 in")))
sketch4.addConstraint(Sketcher.Constraint("DistanceY", 0, 1, 0, 2, Q("1.4 in")))
sketch4.addConstraint(Sketcher.Constraint("DistanceX", 0, 2, -1, 1, Q("6.25 in")))
sketch4.addConstraint(Sketcher.Constraint("DistanceY", -1, 1, 0, 2, Q("9.4375 in")))
sketch4.setExpression("Constraints[8]", "Params.sketch4_width")
sketch4.setExpression("Constraints[9]", "Params.sketch4_height")
pocket2 = body.newObject("PartDesign::Pocket", "Pocket001")
pocket2.Profile = sketch4
pocket2.Type = "ThroughAll"
pocket2.Reversed = True

doc.recompute()
